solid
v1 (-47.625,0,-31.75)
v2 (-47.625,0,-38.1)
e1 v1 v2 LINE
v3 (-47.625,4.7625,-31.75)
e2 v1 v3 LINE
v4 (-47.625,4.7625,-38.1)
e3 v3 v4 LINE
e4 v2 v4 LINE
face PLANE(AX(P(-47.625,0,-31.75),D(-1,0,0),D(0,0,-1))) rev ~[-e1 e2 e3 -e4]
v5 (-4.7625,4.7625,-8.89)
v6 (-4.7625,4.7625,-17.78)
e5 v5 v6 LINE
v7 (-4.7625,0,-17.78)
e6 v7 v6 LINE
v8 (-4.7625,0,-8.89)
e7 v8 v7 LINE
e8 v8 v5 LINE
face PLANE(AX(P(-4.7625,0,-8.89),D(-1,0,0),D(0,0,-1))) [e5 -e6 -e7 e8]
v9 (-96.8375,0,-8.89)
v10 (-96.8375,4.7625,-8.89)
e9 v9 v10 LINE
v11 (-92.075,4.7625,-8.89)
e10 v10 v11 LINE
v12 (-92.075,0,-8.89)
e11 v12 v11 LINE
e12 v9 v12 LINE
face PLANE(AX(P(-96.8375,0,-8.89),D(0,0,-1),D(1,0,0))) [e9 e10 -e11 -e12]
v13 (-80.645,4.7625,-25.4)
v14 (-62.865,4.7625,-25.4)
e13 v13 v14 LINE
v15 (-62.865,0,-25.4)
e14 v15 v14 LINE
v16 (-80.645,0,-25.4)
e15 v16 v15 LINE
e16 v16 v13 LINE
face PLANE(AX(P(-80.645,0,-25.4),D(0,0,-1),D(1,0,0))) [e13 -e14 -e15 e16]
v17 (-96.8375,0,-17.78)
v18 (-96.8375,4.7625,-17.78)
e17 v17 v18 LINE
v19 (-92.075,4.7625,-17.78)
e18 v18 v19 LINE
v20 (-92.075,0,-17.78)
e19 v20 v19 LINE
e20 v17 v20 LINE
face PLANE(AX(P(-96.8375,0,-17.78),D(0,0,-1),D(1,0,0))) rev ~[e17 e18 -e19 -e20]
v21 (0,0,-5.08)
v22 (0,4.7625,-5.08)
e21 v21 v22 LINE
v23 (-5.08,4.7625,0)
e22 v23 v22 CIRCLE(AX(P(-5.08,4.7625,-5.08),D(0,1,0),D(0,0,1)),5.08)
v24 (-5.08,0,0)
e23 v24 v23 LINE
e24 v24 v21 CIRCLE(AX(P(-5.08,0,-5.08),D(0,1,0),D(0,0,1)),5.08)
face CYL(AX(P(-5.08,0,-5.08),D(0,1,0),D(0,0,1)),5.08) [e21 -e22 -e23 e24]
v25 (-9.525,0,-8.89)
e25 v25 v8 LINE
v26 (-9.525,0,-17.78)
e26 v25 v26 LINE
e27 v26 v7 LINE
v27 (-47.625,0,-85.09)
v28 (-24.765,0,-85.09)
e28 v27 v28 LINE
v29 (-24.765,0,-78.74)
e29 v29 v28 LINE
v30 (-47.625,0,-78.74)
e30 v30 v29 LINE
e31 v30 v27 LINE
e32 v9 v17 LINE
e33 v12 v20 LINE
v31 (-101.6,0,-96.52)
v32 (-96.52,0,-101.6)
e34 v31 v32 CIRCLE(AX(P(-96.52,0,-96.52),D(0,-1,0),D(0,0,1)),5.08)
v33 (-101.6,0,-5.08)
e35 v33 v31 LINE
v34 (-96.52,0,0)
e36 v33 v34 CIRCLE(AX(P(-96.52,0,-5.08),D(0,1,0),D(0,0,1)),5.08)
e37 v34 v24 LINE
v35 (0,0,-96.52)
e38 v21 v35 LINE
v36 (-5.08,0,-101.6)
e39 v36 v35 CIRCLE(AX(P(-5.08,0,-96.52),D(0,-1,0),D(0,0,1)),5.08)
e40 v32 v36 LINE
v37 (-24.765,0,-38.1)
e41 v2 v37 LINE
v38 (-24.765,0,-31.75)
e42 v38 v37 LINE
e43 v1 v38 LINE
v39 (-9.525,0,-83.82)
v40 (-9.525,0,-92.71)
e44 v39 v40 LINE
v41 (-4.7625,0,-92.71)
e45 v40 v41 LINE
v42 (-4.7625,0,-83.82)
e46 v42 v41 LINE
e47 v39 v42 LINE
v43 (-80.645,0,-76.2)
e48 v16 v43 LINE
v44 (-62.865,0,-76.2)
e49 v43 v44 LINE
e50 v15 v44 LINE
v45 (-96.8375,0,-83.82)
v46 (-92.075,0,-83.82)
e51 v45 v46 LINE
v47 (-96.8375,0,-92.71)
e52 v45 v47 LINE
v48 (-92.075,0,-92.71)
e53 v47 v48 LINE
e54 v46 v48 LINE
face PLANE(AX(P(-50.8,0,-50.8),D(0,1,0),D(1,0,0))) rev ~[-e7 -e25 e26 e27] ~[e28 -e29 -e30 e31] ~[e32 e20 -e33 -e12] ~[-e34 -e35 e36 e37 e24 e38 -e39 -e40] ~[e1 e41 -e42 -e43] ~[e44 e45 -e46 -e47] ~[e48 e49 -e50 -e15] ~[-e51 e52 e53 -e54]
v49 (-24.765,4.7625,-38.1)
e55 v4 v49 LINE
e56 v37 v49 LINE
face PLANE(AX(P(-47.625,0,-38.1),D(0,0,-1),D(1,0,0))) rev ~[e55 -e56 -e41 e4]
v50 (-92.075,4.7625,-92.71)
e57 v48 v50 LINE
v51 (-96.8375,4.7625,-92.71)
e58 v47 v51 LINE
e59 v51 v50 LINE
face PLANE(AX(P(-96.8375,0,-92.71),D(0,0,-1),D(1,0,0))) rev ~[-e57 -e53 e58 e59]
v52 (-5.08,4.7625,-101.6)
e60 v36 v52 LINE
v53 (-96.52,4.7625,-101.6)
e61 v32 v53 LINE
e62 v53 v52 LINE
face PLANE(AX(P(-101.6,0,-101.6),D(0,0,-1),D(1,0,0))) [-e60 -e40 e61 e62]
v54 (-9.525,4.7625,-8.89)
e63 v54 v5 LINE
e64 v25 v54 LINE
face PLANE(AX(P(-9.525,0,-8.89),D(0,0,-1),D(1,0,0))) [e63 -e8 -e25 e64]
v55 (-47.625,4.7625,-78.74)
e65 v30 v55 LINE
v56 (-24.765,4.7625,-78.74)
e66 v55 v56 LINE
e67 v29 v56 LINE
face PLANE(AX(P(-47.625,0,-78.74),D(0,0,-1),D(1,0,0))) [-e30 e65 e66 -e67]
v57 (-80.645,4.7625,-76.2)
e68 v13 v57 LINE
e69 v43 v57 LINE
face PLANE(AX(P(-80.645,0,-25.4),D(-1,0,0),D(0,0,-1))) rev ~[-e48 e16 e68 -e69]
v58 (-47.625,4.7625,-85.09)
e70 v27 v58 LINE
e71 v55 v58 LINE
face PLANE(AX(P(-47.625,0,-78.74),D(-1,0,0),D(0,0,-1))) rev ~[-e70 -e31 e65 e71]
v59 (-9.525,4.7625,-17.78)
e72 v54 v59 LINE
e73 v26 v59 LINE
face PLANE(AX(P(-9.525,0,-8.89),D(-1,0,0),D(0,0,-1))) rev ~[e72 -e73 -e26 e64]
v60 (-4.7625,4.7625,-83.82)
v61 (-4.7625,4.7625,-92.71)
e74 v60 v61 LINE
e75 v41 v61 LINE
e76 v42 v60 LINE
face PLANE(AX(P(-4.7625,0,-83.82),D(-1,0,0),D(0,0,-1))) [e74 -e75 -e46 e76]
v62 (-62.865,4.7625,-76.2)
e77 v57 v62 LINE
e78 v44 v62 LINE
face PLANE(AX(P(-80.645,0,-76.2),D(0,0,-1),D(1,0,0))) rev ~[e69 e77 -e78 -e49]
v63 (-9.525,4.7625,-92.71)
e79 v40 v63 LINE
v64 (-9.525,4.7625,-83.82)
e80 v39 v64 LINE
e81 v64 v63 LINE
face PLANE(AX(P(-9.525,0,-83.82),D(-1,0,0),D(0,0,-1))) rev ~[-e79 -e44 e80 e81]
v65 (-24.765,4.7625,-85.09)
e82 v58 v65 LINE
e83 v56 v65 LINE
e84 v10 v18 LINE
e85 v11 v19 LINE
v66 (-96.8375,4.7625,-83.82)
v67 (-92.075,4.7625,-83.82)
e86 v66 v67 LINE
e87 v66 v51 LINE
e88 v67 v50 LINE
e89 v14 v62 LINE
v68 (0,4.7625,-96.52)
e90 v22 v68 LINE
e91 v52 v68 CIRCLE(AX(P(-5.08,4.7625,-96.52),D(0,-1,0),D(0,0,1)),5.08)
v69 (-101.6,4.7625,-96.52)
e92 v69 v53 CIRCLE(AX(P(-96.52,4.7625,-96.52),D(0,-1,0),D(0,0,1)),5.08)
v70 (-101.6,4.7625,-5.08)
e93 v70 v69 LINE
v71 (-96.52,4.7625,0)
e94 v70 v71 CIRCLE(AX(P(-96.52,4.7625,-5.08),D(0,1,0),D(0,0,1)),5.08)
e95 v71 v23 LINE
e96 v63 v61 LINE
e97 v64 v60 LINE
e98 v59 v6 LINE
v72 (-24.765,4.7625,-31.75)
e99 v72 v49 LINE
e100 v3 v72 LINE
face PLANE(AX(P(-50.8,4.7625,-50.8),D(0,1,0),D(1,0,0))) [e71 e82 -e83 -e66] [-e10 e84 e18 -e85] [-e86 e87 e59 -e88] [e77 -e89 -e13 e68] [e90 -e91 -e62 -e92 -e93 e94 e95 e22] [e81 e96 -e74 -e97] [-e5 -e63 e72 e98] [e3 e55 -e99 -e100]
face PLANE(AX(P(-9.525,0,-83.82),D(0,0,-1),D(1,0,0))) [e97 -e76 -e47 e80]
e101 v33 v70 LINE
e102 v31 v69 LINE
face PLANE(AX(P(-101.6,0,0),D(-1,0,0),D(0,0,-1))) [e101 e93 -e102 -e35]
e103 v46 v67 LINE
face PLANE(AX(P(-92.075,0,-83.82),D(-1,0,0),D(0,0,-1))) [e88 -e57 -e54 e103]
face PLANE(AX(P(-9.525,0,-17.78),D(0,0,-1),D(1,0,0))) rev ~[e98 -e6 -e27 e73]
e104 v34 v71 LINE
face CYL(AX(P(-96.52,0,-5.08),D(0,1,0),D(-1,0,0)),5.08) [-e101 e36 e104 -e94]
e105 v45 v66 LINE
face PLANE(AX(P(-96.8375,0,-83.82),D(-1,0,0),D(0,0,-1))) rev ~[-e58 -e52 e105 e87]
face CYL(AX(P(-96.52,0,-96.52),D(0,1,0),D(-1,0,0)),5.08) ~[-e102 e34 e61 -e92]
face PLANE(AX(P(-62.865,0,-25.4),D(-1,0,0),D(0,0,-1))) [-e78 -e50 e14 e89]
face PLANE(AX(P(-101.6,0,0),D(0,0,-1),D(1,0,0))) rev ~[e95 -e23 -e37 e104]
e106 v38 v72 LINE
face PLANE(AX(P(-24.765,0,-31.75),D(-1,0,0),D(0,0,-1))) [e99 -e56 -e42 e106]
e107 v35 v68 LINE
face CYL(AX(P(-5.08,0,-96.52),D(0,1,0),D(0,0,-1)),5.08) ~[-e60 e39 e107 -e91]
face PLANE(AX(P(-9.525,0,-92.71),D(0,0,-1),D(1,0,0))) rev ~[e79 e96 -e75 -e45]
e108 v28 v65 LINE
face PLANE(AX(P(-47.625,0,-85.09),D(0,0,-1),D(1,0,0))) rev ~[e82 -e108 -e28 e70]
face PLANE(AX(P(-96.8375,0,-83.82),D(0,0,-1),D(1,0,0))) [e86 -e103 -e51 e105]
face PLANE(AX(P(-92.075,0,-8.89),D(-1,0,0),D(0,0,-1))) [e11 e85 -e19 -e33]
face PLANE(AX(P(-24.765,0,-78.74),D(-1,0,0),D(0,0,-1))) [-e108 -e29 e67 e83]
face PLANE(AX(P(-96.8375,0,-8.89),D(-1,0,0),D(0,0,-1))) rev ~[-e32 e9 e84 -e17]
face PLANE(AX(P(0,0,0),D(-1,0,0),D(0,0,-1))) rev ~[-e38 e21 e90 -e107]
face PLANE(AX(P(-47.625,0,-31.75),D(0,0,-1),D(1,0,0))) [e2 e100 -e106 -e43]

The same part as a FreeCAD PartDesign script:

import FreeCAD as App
import Part
import Sketcher
from FreeCAD import Vector
Q = App.Units.Quantity


def edges_at(feature, points):
    """Names of the edges that pass closest to the given points."""
    edges = feature.Shape.Edges
    near = lambda p: min(range(len(edges)), key=lambda i: edges[i].distToShape(Part.Vertex(*p))[0])
    return sorted({f"Edge{near(p) + 1}" for p in points})


def add_polygon(sketch, points):
    """Adds a closed chain of lines whose ends are joined by coincident constraints."""
    first, n = sketch.GeometryCount, len(points)
    for a, b in zip(points, points[1:] + points[:1]):
        sketch.addGeometry(Part.LineSegment(App.Vector(*a, 0), App.Vector(*b, 0)), False)
    for i in range(n):
        sketch.addConstraint(Sketcher.Constraint("Coincident", first + i, 2, first + (i + 1) % n, 1))

doc = App.newDocument("Part")
body = doc.addObject("PartDesign::Body", "Body")

sketch1 = body.newObject("Sketcher::SketchObject", "Sketch")
sketch1.AttachmentSupport = (doc.getObject("XZ_Plane"), [""])
sketch1.MapMode = "FlatFace"
add_polygon(sketch1, [(-101.6, -101.6), (-101.6, 0), (0, 0), (0, -101.6)])
add_polygon(sketch1, [(-92.1, -8.9), (-96.8, -8.9), (-96.8, -17.8), (-92.1, -17.8)])
add_polygon(sketch1, [(-4.8, -8.9), (-9.5, -8.9), (-9.5, -17.8), (-4.8, -17.8)])
add_polygon(sketch1, [(-24.8, -31.8), (-47.6, -31.8), (-47.6, -38.1), (-24.8, -38.1)])
add_polygon(sketch1, [(-62.9, -25.4), (-80.6, -25.4), (-80.6, -76.2), (-62.9, -76.2)])
add_polygon(sketch1, [(-92.1, -83.8), (-96.8, -83.8), (-96.8, -92.7), (-92.1, -92.7)])
add_polygon(sketch1, [(-24.8, -78.7), (-47.6, -78.7), (-47.6, -85.1), (-24.8, -85.1)])
add_polygon(sketch1, [(-4.8, -83.8), (-9.5, -83.8), (-9.5, -92.7), (-4.8, -92.7)])
sketch1.addConstraint(Sketcher.Constraint("Vertical", 0))
sketch1.addConstraint(Sketcher.Constraint("Horizontal", 1))
sketch1.addConstraint(Sketcher.Constraint("Vertical", 2))
sketch1.addConstraint(Sketcher.Constraint("Horizontal", 3))
sketch1.addConstraint(Sketcher.Constraint("Horizontal", 4))
sketch1.addConstraint(Sketcher.Constraint("Vertical", 5))
sketch1.addConstraint(Sketcher.Constraint("Horizontal", 6))
sketch1.addConstraint(Sketcher.Constraint("Vertical", 7))
sketch1.addConstraint(Sketcher.Constraint("Horizontal", 8))
sketch1.addConstraint(Sketcher.Constraint("Vertical", 9))
sketch1.addConstraint(Sketcher.Constraint("Horizontal", 10))
sketch1.addConstraint(Sketcher.Constraint("Vertical", 11))
sketch1.addConstraint(Sketcher.Constraint("Horizontal", 12))
sketch1.addConstraint(Sketcher.Constraint("Vertical", 13))
sketch1.addConstraint(Sketcher.Constraint("Horizontal", 14))
sketch1.addConstraint(Sketcher.Constraint("Vertical", 15))
sketch1.addConstraint(Sketcher.Constraint("Horizontal", 16))
sketch1.addConstraint(Sketcher.Constraint("Vertical", 17))
sketch1.addConstraint(Sketcher.Constraint("Horizontal", 18))
sketch1.addConstraint(Sketcher.Constraint("Vertical", 19))
sketch1.addConstraint(Sketcher.Constraint("Horizontal", 20))
sketch1.addConstraint(Sketcher.Constraint("Vertical", 21))
sketch1.addConstraint(Sketcher.Constraint("Horizontal", 22))
sketch1.addConstraint(Sketcher.Constraint("Vertical", 23))
sketch1.addConstraint(Sketcher.Constraint("Horizontal", 24))
sketch1.addConstraint(Sketcher.Constraint("Vertical", 25))
sketch1.addConstraint(Sketcher.Constraint("Horizontal", 26))
sketch1.addConstraint(Sketcher.Constraint("Vertical", 27))
sketch1.addConstraint(Sketcher.Constraint("Horizontal", 28))
sketch1.addConstraint(Sketcher.Constraint("Vertical", 29))
sketch1.addConstraint(Sketcher.Constraint("Horizontal", 30))
sketch1.addConstraint(Sketcher.Constraint("Vertical", 31))
sketch1.addConstraint(Sketcher.Constraint("Coincident", 1, 2, -1, 1))
sketch1.addConstraint(Sketcher.Constraint("Horizontal", 7, 2, 8, 2))
sketch1.addConstraint(Sketcher.Constraint("Horizontal", 6, 2, 9, 2))
sketch1.addConstraint(Sketcher.Constraint("Horizontal", 23, 2, 28, 2))
sketch1.addConstraint(Sketcher.Constraint("Horizontal", 22, 2, 29, 2))
sketch1.addConstraint(Sketcher.Constraint("Vertical", 5, 2, 20, 2))
sketch1.addConstraint(Sketcher.Constraint("Vertical", 7, 2, 22, 2))
sketch1.addConstraint(Sketcher.Constraint("Vertical", 13, 2, 24, 2))
sketch1.addConstraint(Sketcher.Constraint("Vertical", 15, 2, 26, 2))
sketch1.addConstraint(Sketcher.Constraint("Vertical", 9, 2, 28, 2))
sketch1.addConstraint(Sketcher.Constraint("Vertical", 11, 2, 30, 2))
sketch1.addConstraint(Sketcher.Constraint("Equal", 6, 8))
sketch1.addConstraint(Sketcher.Constraint("Equal", 3, 0))
sketch1.addConstraint(Sketcher.Constraint("Equal", 11, 21))
sketch1.addConstraint(Sketcher.Constraint("Equal", 15, 25))
sketch1.addConstraint(Sketcher.Constraint("DistanceX", 1, 1, 1, 2, Q("4 in")))
sketch1.addConstraint(Sketcher.Constraint("DistanceY", 17, 2, 17, 1, Q("2 in")))
sketch1.addConstraint(Sketcher.Constraint("DistanceX", 12, 2, 12, 1, Q("0.9 in")))
sketch1.addConstraint(Sketcher.Constraint("DistanceX", 16, 2, 16, 1, Q("0.7 in")))
sketch1.addConstraint(Sketcher.Constraint("DistanceY", 16, 2, -1, 1, Q("1 in")))
sketch1.addConstraint(Sketcher.Constraint("DistanceY", 5, 2, 5, 1, Q("0.35 in")))
sketch1.addConstraint(Sketcher.Constraint("DistanceY", 13, 2, 13, 1, Q("0.25 in")))
sketch1.addConstraint(Sketcher.Constraint("DistanceY", 5, 2, -1, 1, Q("0.7 in")))
sketch1.addConstraint(Sketcher.Constraint("DistanceY", 13, 2, -1, 1, Q("1.5 in")))
sketch1.addConstraint(Sketcher.Constraint("DistanceY", 20, 2, -1, 1, Q("3.3 in")))
sketch1.addConstraint(Sketcher.Constraint("DistanceY", 24, 2, -1, 1, Q("3.1 in")))
sketch1.addConstraint(Sketcher.Constraint("DistanceX", 12, 2, 9, 2, Q("1.5 in")))
sketch1.addConstraint(Sketcher.Constraint("DistanceX", 17, 2, 13, 2, Q("1.3 in")))
sketch1.addConstraint(Sketcher.Constraint("DistanceX", 4, 2, 4, 1, Q("0.1875 in")))
sketch1.addConstraint(Sketcher.Constraint("DistanceX", 7, 2, 8, 2, Q("3.25 in")))
sketch1.addConstraint(Sketcher.Constraint("DistanceX", 4, 2, -1, 1, Q("3.8125 in")))
pad1 = body.newObject("PartDesign::Pad", "Pad")
pad1.Profile = sketch1
pad1.Length = Q("0.1875 in")
pad1.Reversed = True
doc.recompute()

fillet = body.newObject("PartDesign::Fillet", "Fillet")
fillet.Base = (pad1, edges_at(pad1, [
    (0, 2.381, 0),
    (-101.6, 2.381, 0),
    (-101.6, 2.381, -101.6),
    (0, 2.381, -101.6),
]))
fillet.Radius = Q("0.2 in")

doc.recompute()
